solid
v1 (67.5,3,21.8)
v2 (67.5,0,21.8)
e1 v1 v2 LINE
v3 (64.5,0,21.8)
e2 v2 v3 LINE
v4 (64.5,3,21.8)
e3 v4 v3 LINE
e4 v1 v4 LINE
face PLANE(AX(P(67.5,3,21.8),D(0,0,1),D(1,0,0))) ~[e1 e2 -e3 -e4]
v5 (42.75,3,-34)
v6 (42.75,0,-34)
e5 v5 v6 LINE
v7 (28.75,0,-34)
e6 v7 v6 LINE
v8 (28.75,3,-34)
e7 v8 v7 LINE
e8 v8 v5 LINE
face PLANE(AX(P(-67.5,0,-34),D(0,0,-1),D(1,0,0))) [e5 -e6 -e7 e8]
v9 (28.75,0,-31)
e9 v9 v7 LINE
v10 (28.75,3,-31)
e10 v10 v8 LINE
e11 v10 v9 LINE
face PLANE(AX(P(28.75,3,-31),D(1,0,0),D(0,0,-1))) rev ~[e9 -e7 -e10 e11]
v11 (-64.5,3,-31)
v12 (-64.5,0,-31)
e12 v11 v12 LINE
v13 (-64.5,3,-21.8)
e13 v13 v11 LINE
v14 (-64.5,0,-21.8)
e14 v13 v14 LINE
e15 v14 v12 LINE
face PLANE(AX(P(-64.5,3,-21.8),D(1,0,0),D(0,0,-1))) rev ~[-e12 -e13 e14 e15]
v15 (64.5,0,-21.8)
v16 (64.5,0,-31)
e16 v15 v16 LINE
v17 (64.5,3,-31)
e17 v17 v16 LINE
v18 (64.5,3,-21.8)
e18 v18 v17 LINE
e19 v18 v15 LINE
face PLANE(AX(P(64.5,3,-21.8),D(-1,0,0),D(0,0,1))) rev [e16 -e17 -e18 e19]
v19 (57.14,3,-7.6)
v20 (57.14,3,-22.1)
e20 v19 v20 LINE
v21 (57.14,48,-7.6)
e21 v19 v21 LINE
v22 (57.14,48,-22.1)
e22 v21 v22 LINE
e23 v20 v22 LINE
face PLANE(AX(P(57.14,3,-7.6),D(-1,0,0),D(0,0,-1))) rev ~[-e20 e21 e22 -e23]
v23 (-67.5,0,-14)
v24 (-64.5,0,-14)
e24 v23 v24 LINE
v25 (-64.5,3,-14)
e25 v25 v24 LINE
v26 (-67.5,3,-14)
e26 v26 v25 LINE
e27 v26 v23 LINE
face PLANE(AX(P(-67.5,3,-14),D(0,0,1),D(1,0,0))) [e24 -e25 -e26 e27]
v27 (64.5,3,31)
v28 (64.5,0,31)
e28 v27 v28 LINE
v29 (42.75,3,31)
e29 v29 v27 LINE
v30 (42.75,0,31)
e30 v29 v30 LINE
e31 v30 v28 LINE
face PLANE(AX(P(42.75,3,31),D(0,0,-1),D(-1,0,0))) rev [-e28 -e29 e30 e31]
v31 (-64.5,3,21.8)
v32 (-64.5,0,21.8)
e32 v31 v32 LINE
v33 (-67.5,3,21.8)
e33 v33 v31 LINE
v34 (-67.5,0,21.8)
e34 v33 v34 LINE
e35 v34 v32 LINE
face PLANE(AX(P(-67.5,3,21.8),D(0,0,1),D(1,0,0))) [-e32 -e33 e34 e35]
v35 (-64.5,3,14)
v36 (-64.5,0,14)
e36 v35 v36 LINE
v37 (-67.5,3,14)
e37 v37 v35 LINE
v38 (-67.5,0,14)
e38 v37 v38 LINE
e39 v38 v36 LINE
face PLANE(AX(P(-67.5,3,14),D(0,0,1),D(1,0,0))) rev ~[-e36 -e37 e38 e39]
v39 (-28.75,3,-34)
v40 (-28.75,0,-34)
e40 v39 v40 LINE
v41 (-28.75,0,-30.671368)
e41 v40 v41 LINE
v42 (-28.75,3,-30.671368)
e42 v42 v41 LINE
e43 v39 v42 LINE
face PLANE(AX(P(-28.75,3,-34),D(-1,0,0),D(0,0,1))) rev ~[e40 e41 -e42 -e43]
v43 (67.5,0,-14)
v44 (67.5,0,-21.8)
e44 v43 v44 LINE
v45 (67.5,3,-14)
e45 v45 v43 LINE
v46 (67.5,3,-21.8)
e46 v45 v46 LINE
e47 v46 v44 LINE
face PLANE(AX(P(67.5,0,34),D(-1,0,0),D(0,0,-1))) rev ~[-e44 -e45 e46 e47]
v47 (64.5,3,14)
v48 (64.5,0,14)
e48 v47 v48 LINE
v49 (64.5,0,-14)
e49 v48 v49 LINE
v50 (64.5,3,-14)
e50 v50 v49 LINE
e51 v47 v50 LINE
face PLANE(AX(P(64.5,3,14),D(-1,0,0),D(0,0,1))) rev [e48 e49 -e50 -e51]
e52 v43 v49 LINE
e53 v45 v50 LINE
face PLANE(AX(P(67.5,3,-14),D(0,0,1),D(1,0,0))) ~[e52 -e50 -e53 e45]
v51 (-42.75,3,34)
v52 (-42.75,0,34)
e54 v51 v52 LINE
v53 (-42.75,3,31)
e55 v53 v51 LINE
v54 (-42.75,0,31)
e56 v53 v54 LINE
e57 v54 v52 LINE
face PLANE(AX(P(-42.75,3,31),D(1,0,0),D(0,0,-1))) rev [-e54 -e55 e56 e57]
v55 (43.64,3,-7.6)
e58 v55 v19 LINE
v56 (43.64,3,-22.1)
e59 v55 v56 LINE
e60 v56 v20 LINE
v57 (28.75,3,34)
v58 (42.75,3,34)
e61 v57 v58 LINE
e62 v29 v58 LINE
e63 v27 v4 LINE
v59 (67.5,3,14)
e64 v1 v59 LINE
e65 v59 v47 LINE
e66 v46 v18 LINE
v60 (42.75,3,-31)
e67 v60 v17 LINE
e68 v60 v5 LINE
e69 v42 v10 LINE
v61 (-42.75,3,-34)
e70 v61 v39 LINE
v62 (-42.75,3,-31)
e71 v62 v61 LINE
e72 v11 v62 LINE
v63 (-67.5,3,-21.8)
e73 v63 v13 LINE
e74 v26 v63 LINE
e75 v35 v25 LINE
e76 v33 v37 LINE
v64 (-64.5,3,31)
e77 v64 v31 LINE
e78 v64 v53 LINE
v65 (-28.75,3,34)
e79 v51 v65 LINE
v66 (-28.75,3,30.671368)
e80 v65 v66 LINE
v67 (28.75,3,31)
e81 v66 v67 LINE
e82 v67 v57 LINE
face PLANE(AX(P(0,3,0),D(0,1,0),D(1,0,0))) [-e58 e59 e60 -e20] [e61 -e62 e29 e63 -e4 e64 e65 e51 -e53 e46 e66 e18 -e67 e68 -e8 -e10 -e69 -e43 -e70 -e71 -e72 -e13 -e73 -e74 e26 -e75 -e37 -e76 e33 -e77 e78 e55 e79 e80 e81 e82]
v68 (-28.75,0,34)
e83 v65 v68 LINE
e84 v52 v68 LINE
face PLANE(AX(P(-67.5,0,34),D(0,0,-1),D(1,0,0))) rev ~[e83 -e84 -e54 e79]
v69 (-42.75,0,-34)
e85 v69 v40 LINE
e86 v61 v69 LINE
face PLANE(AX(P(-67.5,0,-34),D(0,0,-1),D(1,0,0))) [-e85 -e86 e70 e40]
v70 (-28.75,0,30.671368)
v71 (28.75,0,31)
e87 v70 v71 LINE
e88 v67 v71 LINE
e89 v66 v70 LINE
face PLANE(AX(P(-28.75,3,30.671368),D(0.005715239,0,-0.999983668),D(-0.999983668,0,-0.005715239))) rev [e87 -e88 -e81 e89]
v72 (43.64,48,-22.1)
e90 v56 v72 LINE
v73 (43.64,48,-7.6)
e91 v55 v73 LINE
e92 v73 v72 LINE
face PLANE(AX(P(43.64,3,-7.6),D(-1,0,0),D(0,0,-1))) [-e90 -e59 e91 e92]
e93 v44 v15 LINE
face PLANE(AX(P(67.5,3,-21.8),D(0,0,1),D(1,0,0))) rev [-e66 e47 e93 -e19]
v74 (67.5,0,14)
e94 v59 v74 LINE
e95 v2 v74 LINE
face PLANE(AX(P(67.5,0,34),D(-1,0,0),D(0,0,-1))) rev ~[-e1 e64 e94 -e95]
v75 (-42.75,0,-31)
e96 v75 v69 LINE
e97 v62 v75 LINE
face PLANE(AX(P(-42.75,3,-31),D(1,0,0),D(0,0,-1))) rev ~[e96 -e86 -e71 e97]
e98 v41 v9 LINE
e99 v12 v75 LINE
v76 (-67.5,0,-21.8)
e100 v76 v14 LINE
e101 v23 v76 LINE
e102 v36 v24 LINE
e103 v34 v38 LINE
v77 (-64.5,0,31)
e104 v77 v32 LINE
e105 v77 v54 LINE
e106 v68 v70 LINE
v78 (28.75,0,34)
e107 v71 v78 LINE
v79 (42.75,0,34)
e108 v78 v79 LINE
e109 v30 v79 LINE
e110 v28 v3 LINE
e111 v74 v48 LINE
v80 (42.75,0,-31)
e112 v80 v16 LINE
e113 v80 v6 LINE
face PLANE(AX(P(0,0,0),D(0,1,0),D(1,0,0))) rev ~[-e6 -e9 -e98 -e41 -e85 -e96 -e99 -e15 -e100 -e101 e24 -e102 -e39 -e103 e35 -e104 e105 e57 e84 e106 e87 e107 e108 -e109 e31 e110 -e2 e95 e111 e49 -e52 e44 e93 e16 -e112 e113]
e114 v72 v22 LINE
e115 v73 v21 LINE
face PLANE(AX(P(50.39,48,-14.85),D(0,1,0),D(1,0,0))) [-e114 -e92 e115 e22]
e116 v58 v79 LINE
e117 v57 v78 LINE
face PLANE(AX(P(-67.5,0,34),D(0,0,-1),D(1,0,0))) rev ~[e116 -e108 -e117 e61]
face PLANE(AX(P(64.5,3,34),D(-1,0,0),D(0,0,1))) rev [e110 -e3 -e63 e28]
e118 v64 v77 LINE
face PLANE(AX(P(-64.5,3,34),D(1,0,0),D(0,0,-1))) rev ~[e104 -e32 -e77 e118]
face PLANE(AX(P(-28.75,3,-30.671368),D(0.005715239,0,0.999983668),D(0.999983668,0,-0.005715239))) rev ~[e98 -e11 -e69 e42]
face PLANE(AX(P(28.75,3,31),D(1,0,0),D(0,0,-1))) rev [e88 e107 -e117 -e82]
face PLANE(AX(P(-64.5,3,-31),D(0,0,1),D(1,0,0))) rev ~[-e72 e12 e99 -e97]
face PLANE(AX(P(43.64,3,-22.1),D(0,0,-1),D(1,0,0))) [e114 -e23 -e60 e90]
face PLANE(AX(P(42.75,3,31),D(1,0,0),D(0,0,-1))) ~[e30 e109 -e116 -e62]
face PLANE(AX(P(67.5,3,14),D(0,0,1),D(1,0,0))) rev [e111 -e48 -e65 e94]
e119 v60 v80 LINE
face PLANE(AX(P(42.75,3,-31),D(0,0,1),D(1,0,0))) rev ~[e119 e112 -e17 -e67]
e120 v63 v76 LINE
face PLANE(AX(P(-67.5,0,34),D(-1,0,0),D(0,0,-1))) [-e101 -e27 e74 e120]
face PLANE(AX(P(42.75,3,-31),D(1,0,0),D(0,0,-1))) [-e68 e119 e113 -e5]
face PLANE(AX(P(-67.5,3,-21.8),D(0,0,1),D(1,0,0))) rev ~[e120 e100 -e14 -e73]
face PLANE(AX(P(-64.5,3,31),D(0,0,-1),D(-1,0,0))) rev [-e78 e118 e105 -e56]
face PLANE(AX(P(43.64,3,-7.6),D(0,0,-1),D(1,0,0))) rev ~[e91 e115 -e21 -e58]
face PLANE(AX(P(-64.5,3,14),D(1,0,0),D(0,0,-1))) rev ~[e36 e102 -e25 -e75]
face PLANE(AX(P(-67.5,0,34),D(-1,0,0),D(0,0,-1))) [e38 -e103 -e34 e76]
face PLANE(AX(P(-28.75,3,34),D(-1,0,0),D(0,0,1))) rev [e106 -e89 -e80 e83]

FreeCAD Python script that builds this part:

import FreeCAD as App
import Part
import Sketcher
Q = App.Units.Quantity

doc = App.newDocument("Part")
body = doc.addObject("PartDesign::Body", "Body")

sketch1 = doc.addObject("Sketcher::SketchObject", "Sketch")
body.addObject(sketch1)
sketch1.AttachmentSupport = (doc.XZ_Plane, [""])
sketch1.MapMode = "FlatFace"
sketch1.addGeometry(Part.LineSegment(App.Vector(-68, -34, 0), App.Vector(-68, 34, 0)), False)
sketch1.addGeometry(Part.LineSegment(App.Vector(-68, 34, 0), App.Vector(68, 34, 0)), False)
sketch1.addGeometry(Part.LineSegment(App.Vector(68, 34, 0), App.Vector(68, -34, 0)), False)
sketch1.addGeometry(Part.LineSegment(App.Vector(68, -34, 0), App.Vector(-68, -34, 0)), False)
sketch1.addConstraint(Sketcher.Constraint("Coincident", 0, 2, 1, 1))
sketch1.addConstraint(Sketcher.Constraint("Coincident", 1, 2, 2, 1))
sketch1.addConstraint(Sketcher.Constraint("Coincident", 2, 2, 3, 1))
sketch1.addConstraint(Sketcher.Constraint("Coincident", 3, 2, 0, 1))
sketch1.addConstraint(Sketcher.Constraint("Vertical", 0))
sketch1.addConstraint(Sketcher.Constraint("Horizontal", 1))
sketch1.addConstraint(Sketcher.Constraint("Vertical", 2))
sketch1.addConstraint(Sketcher.Constraint("Horizontal", 3))
sketch1.addConstraint(Sketcher.Constraint("Symmetric", 0, 2, 2, 2, -1, 1))
sketch1.addConstraint(Sketcher.Constraint("DistanceX", 1, 1, 1, 2, Q("135 mm")))
sketch1.addConstraint(Sketcher.Constraint("DistanceY", 0, 1, 0, 2, Q("68 mm")))
pad1 = doc.addObject("PartDesign::Pad", "Pad")
body.addObject(pad1)
pad1.Profile = sketch1
pad1.Length = 3
pad1.Reversed = True

sketch2 = doc.addObject("Sketcher::SketchObject", "Sketch001")
body.addObject(sketch2)
sketch2.AttachmentSupport = (doc.XZ_Plane, [""])
sketch2.MapMode = "FlatFace"
sketch2.AttachmentOffset = App.Placement(App.Vector(0, 0, -3), App.Rotation())
sketch2.addGeometry(Part.LineSegment(App.Vector(-67.5, -34, 0), App.Vector(-67.5, -21.8, 0)), False)
sketch2.addGeometry(Part.LineSegment(App.Vector(-67.5, -21.8, 0), App.Vector(-64.5, -21.8, 0)), False)
sketch2.addGeometry(Part.LineSegment(App.Vector(-64.5, -21.8, 0), App.Vector(-64.5, -34, 0)), False)
sketch2.addGeometry(Part.LineSegment(App.Vector(-64.5, -34, 0), App.Vector(-67.5, -34, 0)), False)
sketch2.addGeometry(Part.LineSegment(App.Vector(-67.5, -14, 0), App.Vector(-67.5, 14, 0)), False)
sketch2.addGeometry(Part.LineSegment(App.Vector(-67.5, 14, 0), App.Vector(-64.5, 14, 0)), False)
sketch2.addGeometry(Part.LineSegment(App.Vector(-64.5, 14, 0), App.Vector(-64.5, -14, 0)), False)
sketch2.addGeometry(Part.LineSegment(App.Vector(-64.5, -14, 0), App.Vector(-67.5, -14, 0)), False)
sketch2.addGeometry(Part.LineSegment(App.Vector(-67.5, 21.8, 0), App.Vector(-67.5, 34, 0)), False)
sketch2.addGeometry(Part.LineSegment(App.Vector(-67.5, 34, 0), App.Vector(-64.5, 34, 0)), False)
sketch2.addGeometry(Part.LineSegment(App.Vector(-64.5, 34, 0), App.Vector(-64.5, 21.8, 0)), False)
sketch2.addGeometry(Part.LineSegment(App.Vector(-64.5, 21.8, 0), App.Vector(-67.5, 21.8, 0)), False)
sketch2.addConstraint(Sketcher.Constraint("Coincident", 0, 2, 1, 1))
sketch2.addConstraint(Sketcher.Constraint("Coincident", 1, 2, 2, 1))
sketch2.addConstraint(Sketcher.Constraint("Coincident", 2, 2, 3, 1))
sketch2.addConstraint(Sketcher.Constraint("Coincident", 3, 2, 0, 1))
sketch2.addConstraint(Sketcher.Constraint("Coincident", 4, 2, 5, 1))
sketch2.addConstraint(Sketcher.Constraint("Coincident", 5, 2, 6, 1))
sketch2.addConstraint(Sketcher.Constraint("Coincident", 6, 2, 7, 1))
sketch2.addConstraint(Sketcher.Constraint("Coincident", 7, 2, 4, 1))
sketch2.addConstraint(Sketcher.Constraint("Coincident", 8, 2, 9, 1))
sketch2.addConstraint(Sketcher.Constraint("Coincident", 9, 2, 10, 1))
sketch2.addConstraint(Sketcher.Constraint("Coincident", 10, 2, 11, 1))
sketch2.addConstraint(Sketcher.Constraint("Coincident", 11, 2, 8, 1))
sketch2.addConstraint(Sketcher.Constraint("Vertical", 0))
sketch2.addConstraint(Sketcher.Constraint("Horizontal", 1))
sketch2.addConstraint(Sketcher.Constraint("Vertical", 2))
sketch2.addConstraint(Sketcher.Constraint("Horizontal", 3))
sketch2.addConstraint(Sketcher.Constraint("Vertical", 4))
sketch2.addConstraint(Sketcher.Constraint("Horizontal", 5))
sketch2.addConstraint(Sketcher.Constraint("Vertical", 6))
sketch2.addConstraint(Sketcher.Constraint("Horizontal", 7))
sketch2.addConstraint(Sketcher.Constraint("Vertical", 8))
sketch2.addConstraint(Sketcher.Constraint("Horizontal", 9))
sketch2.addConstraint(Sketcher.Constraint("Vertical", 10))
sketch2.addConstraint(Sketcher.Constraint("Horizontal", 11))
sketch2.addConstraint(Sketcher.Constraint("Symmetric", 3, 2, 8, 2, -1))
sketch2.addConstraint(Sketcher.Constraint("Symmetric", 1, 2, 10, 2, -1))
sketch2.addConstraint(Sketcher.Constraint("Vertical", 3, 2, 4, 2))
sketch2.addConstraint(Sketcher.Constraint("Vertical", 2, 2, 5, 2))
sketch2.addConstraint(Sketcher.Constraint("DistanceX", 1, 1, 1, 2, Q("3 mm")))
sketch2.addConstraint(Sketcher.Constraint("DistanceY", 4, 1, 4, 2, Q("28 mm")))
sketch2.addConstraint(Sketcher.Constraint("DistanceY", 0, 1, 0, 2, Q("12.2 mm")))
sketch2.addConstraint(Sketcher.Constraint("DistanceY", 2, 2, -1, 1, Q("34 mm")))
sketch2.addConstraint(Sketcher.Constraint("DistanceY", -1, 1, 4, 2, Q("14 mm")))
sketch2.addConstraint(Sketcher.Constraint("DistanceX", 0, 2, -1, 1, Q("67.5 mm")))
pocket1 = doc.addObject("PartDesign::Pocket", "Pocket")
body.addObject(pocket1)
pocket1.Profile = sketch2
pocket1.Length = 3
pocket1.Reversed = True
doc.recompute()

mirrored = doc.addObject("PartDesign::Mirrored", "Mirrored")
body.addObject(mirrored)
mirrored.Originals = [pocket1]
mirrored.MirrorPlane = (doc.YZ_Plane, [""])
body.Tip = mirrored

sketch3 = doc.addObject("Sketcher::SketchObject", "Sketch002")
body.addObject(sketch3)
sketch3.AttachmentSupport = (doc.XZ_Plane, [""])
sketch3.MapMode = "FlatFace"
sketch3.AttachmentOffset = App.Placement(App.Vector(0, 0, -3), App.Rotation())
sketch3.addGeometry(Part.LineSegment(App.Vector(-64.5, -34, 0), App.Vector(-64.5, -31, 0)), False)
sketch3.addGeometry(Part.LineSegment(App.Vector(-64.5, -31, 0), App.Vector(-42.8, -31, 0)), False)
sketch3.addGeometry(Part.LineSegment(App.Vector(-42.8, -31, 0), App.Vector(-42.8, -34, 0)), False)
sketch3.addGeometry(Part.LineSegment(App.Vector(-42.8, -34, 0), App.Vector(-64.5, -34, 0)), False)
sketch3.addGeometry(Part.LineSegment(App.Vector(28.8, -34, 0), App.Vector(-28.8, -34, 0)), False)
sketch3.addGeometry(Part.LineSegment(App.Vector(-28.8, -34, 0), App.Vector(-28.8, -30.7, 0)), False)
sketch3.addGeometry(Part.LineSegment(App.Vector(-28.8, -30.7, 0), App.Vector(28.8, -31, 0)), False)
sketch3.addGeometry(Part.LineSegment(App.Vector(28.8, -31, 0), App.Vector(28.8, -34, 0)), False)
sketch3.addGeometry(Part.LineSegment(App.Vector(42.8, -34, 0), App.Vector(42.8, -31, 0)), False)
sketch3.addGeometry(Part.LineSegment(App.Vector(42.8, -31, 0), App.Vector(64.5, -31, 0)), False)
sketch3.addGeometry(Part.LineSegment(App.Vector(64.5, -31, 0), App.Vector(64.5, -34, 0)), False)
sketch3.addGeometry(Part.LineSegment(App.Vector(64.5, -34, 0), App.Vector(42.8, -34, 0)), False)
sketch3.addConstraint(Sketcher.Constraint("Coincident", 0, 2, 1, 1))
sketch3.addConstraint(Sketcher.Constraint("Coincident", 1, 2, 2, 1))
sketch3.addConstraint(Sketcher.Constraint("Coincident", 2, 2, 3, 1))
sketch3.addConstraint(Sketcher.Constraint("Coincident", 3, 2, 0, 1))
sketch3.addConstraint(Sketcher.Constraint("Coincident", 4, 2, 5, 1))
sketch3.addConstraint(Sketcher.Constraint("Coincident", 5, 2, 6, 1))
sketch3.addConstraint(Sketcher.Constraint("Coincident", 6, 2, 7, 1))
sketch3.addConstraint(Sketcher.Constraint("Coincident", 7, 2, 4, 1))
sketch3.addConstraint(Sketcher.Constraint("Coincident", 8, 2, 9, 1))
sketch3.addConstraint(Sketcher.Constraint("Coincident", 9, 2, 10, 1))
sketch3.addConstraint(Sketcher.Constraint("Coincident", 10, 2, 11, 1))
sketch3.addConstraint(Sketcher.Constraint("Coincident", 11, 2, 8, 1))
sketch3.addConstraint(Sketcher.Constraint("Vertical", 0))
sketch3.addConstraint(Sketcher.Constraint("Horizontal", 1))
sketch3.addConstraint(Sketcher.Constraint("Vertical", 2))
sketch3.addConstraint(Sketcher.Constraint("Horizontal", 3))
sketch3.addConstraint(Sketcher.Constraint("Horizontal", 4))
sketch3.addConstraint(Sketcher.Constraint("Vertical", 5))
sketch3.addConstraint(Sketcher.Constraint("Vertical", 7))
sketch3.addConstraint(Sketcher.Constraint("Vertical", 8))
sketch3.addConstraint(Sketcher.Constraint("Horizontal", 9))
sketch3.addConstraint(Sketcher.Constraint("Vertical", 10))
sketch3.addConstraint(Sketcher.Constraint("Horizontal", 11))
sketch3.addConstraint(Sketcher.Constraint("Symmetric", 1, 2, 8, 2, -2))
sketch3.addConstraint(Sketcher.Constraint("Symmetric", 3, 2, 10, 2, -2))
sketch3.addConstraint(Sketcher.Constraint("Horizontal", 3, 2, 4, 2))
sketch3.addConstraint(Sketcher.Constraint("Horizontal", 1, 2, 6, 2))
sketch3.addConstraint(Sketcher.Constraint("DistanceY", 0, 1, 0, 2, Q("3 mm")))
sketch3.addConstraint(Sketcher.Constraint("DistanceX", 4, 2, 4, 1, Q("57.5 mm")))
sketch3.addConstraint(Sketcher.Constraint("DistanceY", 0, 2, -1, 1, Q("31 mm")))
sketch3.addConstraint(Sketcher.Constraint("DistanceX", 2, 2, 4, 2, Q("14 mm")))
sketch3.addConstraint(Sketcher.Constraint("DistanceX", 6, 2, 8, 2, Q("14 mm")))
sketch3.addConstraint(Sketcher.Constraint("DistanceX", 1, 1, 1, 2, Q("21.75 mm")))
sketch3.addConstraint(Sketcher.Constraint("DistanceY", 5, 1, 5, 2, Q("3.328632 mm")))
pocket2 = doc.addObject("PartDesign::Pocket", "Pocket001")
body.addObject(pocket2)
pocket2.Profile = sketch3
pocket2.Length = 3
pocket2.Reversed = True
doc.recompute()

mirrored2 = doc.addObject("PartDesign::Mirrored", "Mirrored001")
body.addObject(mirrored2)
mirrored2.Originals = [pocket2]
mirrored2.MirrorPlane = (doc.XY_Plane, [""])
body.Tip = mirrored2

sketch4 = doc.addObject("Sketcher::SketchObject", "Sketch003")
body.addObject(sketch4)
sketch4.AttachmentSupport = (doc.XZ_Plane, [""])
sketch4.MapMode = "FlatFace"
sketch4.AttachmentOffset = App.Placement(App.Vector(0, 0, -3), App.Rotation())
sketch4.addGeometry(Part.LineSegment(App.Vector(44, -22, 0), App.Vector(44, -8, 0)), False)
sketch4.addGeometry(Part.LineSegment(App.Vector(44, -8, 0), App.Vector(57, -8, 0)), False)
sketch4.addGeometry(Part.LineSegment(App.Vector(57, -8, 0), App.Vector(57, -22, 0)), False)
sketch4.addGeometry(Part.LineSegment(App.Vector(57, -22, 0), App.Vector(44, -22, 0)), False)
sketch4.addConstraint(Sketcher.Constraint("Coincident", 0, 2, 1, 1))
sketch4.addConstraint(Sketcher.Constraint("Coincident", 1, 2, 2, 1))
sketch4.addConstraint(Sketcher.Constraint("Coincident", 2, 2, 3, 1))
sketch4.addConstraint(Sketcher.Constraint("Coincident", 3, 2, 0, 1))
sketch4.addConstraint(Sketcher.Constraint("Vertical", 0))
sketch4.addConstraint(Sketcher.Constraint("Horizontal", 1))
sketch4.addConstraint(Sketcher.Constraint("Vertical", 2))
sketch4.addConstraint(Sketcher.Constraint("Horizontal", 3))
sketch4.addConstraint(Sketcher.Constraint("DistanceX", 1, 1, 1, 2, Q("13.5 mm")))
sketch4.addConstraint(Sketcher.Constraint("DistanceY", 0, 1, 0, 2, Q("14.5 mm")))
sketch4.addConstraint(Sketcher.Constraint("DistanceY", 0, 2, -1, 1, Q("7.6 mm")))
sketch4.addConstraint(Sketcher.Constraint("DistanceX", -1, 1, 0, 2, Q("43.64 mm")))
pad2 = doc.addObject("PartDesign::Pad", "Pad001")
body.addObject(pad2)
pad2.Profile = sketch4
pad2.Length = 45
pad2.Reversed = True

doc.recompute()
